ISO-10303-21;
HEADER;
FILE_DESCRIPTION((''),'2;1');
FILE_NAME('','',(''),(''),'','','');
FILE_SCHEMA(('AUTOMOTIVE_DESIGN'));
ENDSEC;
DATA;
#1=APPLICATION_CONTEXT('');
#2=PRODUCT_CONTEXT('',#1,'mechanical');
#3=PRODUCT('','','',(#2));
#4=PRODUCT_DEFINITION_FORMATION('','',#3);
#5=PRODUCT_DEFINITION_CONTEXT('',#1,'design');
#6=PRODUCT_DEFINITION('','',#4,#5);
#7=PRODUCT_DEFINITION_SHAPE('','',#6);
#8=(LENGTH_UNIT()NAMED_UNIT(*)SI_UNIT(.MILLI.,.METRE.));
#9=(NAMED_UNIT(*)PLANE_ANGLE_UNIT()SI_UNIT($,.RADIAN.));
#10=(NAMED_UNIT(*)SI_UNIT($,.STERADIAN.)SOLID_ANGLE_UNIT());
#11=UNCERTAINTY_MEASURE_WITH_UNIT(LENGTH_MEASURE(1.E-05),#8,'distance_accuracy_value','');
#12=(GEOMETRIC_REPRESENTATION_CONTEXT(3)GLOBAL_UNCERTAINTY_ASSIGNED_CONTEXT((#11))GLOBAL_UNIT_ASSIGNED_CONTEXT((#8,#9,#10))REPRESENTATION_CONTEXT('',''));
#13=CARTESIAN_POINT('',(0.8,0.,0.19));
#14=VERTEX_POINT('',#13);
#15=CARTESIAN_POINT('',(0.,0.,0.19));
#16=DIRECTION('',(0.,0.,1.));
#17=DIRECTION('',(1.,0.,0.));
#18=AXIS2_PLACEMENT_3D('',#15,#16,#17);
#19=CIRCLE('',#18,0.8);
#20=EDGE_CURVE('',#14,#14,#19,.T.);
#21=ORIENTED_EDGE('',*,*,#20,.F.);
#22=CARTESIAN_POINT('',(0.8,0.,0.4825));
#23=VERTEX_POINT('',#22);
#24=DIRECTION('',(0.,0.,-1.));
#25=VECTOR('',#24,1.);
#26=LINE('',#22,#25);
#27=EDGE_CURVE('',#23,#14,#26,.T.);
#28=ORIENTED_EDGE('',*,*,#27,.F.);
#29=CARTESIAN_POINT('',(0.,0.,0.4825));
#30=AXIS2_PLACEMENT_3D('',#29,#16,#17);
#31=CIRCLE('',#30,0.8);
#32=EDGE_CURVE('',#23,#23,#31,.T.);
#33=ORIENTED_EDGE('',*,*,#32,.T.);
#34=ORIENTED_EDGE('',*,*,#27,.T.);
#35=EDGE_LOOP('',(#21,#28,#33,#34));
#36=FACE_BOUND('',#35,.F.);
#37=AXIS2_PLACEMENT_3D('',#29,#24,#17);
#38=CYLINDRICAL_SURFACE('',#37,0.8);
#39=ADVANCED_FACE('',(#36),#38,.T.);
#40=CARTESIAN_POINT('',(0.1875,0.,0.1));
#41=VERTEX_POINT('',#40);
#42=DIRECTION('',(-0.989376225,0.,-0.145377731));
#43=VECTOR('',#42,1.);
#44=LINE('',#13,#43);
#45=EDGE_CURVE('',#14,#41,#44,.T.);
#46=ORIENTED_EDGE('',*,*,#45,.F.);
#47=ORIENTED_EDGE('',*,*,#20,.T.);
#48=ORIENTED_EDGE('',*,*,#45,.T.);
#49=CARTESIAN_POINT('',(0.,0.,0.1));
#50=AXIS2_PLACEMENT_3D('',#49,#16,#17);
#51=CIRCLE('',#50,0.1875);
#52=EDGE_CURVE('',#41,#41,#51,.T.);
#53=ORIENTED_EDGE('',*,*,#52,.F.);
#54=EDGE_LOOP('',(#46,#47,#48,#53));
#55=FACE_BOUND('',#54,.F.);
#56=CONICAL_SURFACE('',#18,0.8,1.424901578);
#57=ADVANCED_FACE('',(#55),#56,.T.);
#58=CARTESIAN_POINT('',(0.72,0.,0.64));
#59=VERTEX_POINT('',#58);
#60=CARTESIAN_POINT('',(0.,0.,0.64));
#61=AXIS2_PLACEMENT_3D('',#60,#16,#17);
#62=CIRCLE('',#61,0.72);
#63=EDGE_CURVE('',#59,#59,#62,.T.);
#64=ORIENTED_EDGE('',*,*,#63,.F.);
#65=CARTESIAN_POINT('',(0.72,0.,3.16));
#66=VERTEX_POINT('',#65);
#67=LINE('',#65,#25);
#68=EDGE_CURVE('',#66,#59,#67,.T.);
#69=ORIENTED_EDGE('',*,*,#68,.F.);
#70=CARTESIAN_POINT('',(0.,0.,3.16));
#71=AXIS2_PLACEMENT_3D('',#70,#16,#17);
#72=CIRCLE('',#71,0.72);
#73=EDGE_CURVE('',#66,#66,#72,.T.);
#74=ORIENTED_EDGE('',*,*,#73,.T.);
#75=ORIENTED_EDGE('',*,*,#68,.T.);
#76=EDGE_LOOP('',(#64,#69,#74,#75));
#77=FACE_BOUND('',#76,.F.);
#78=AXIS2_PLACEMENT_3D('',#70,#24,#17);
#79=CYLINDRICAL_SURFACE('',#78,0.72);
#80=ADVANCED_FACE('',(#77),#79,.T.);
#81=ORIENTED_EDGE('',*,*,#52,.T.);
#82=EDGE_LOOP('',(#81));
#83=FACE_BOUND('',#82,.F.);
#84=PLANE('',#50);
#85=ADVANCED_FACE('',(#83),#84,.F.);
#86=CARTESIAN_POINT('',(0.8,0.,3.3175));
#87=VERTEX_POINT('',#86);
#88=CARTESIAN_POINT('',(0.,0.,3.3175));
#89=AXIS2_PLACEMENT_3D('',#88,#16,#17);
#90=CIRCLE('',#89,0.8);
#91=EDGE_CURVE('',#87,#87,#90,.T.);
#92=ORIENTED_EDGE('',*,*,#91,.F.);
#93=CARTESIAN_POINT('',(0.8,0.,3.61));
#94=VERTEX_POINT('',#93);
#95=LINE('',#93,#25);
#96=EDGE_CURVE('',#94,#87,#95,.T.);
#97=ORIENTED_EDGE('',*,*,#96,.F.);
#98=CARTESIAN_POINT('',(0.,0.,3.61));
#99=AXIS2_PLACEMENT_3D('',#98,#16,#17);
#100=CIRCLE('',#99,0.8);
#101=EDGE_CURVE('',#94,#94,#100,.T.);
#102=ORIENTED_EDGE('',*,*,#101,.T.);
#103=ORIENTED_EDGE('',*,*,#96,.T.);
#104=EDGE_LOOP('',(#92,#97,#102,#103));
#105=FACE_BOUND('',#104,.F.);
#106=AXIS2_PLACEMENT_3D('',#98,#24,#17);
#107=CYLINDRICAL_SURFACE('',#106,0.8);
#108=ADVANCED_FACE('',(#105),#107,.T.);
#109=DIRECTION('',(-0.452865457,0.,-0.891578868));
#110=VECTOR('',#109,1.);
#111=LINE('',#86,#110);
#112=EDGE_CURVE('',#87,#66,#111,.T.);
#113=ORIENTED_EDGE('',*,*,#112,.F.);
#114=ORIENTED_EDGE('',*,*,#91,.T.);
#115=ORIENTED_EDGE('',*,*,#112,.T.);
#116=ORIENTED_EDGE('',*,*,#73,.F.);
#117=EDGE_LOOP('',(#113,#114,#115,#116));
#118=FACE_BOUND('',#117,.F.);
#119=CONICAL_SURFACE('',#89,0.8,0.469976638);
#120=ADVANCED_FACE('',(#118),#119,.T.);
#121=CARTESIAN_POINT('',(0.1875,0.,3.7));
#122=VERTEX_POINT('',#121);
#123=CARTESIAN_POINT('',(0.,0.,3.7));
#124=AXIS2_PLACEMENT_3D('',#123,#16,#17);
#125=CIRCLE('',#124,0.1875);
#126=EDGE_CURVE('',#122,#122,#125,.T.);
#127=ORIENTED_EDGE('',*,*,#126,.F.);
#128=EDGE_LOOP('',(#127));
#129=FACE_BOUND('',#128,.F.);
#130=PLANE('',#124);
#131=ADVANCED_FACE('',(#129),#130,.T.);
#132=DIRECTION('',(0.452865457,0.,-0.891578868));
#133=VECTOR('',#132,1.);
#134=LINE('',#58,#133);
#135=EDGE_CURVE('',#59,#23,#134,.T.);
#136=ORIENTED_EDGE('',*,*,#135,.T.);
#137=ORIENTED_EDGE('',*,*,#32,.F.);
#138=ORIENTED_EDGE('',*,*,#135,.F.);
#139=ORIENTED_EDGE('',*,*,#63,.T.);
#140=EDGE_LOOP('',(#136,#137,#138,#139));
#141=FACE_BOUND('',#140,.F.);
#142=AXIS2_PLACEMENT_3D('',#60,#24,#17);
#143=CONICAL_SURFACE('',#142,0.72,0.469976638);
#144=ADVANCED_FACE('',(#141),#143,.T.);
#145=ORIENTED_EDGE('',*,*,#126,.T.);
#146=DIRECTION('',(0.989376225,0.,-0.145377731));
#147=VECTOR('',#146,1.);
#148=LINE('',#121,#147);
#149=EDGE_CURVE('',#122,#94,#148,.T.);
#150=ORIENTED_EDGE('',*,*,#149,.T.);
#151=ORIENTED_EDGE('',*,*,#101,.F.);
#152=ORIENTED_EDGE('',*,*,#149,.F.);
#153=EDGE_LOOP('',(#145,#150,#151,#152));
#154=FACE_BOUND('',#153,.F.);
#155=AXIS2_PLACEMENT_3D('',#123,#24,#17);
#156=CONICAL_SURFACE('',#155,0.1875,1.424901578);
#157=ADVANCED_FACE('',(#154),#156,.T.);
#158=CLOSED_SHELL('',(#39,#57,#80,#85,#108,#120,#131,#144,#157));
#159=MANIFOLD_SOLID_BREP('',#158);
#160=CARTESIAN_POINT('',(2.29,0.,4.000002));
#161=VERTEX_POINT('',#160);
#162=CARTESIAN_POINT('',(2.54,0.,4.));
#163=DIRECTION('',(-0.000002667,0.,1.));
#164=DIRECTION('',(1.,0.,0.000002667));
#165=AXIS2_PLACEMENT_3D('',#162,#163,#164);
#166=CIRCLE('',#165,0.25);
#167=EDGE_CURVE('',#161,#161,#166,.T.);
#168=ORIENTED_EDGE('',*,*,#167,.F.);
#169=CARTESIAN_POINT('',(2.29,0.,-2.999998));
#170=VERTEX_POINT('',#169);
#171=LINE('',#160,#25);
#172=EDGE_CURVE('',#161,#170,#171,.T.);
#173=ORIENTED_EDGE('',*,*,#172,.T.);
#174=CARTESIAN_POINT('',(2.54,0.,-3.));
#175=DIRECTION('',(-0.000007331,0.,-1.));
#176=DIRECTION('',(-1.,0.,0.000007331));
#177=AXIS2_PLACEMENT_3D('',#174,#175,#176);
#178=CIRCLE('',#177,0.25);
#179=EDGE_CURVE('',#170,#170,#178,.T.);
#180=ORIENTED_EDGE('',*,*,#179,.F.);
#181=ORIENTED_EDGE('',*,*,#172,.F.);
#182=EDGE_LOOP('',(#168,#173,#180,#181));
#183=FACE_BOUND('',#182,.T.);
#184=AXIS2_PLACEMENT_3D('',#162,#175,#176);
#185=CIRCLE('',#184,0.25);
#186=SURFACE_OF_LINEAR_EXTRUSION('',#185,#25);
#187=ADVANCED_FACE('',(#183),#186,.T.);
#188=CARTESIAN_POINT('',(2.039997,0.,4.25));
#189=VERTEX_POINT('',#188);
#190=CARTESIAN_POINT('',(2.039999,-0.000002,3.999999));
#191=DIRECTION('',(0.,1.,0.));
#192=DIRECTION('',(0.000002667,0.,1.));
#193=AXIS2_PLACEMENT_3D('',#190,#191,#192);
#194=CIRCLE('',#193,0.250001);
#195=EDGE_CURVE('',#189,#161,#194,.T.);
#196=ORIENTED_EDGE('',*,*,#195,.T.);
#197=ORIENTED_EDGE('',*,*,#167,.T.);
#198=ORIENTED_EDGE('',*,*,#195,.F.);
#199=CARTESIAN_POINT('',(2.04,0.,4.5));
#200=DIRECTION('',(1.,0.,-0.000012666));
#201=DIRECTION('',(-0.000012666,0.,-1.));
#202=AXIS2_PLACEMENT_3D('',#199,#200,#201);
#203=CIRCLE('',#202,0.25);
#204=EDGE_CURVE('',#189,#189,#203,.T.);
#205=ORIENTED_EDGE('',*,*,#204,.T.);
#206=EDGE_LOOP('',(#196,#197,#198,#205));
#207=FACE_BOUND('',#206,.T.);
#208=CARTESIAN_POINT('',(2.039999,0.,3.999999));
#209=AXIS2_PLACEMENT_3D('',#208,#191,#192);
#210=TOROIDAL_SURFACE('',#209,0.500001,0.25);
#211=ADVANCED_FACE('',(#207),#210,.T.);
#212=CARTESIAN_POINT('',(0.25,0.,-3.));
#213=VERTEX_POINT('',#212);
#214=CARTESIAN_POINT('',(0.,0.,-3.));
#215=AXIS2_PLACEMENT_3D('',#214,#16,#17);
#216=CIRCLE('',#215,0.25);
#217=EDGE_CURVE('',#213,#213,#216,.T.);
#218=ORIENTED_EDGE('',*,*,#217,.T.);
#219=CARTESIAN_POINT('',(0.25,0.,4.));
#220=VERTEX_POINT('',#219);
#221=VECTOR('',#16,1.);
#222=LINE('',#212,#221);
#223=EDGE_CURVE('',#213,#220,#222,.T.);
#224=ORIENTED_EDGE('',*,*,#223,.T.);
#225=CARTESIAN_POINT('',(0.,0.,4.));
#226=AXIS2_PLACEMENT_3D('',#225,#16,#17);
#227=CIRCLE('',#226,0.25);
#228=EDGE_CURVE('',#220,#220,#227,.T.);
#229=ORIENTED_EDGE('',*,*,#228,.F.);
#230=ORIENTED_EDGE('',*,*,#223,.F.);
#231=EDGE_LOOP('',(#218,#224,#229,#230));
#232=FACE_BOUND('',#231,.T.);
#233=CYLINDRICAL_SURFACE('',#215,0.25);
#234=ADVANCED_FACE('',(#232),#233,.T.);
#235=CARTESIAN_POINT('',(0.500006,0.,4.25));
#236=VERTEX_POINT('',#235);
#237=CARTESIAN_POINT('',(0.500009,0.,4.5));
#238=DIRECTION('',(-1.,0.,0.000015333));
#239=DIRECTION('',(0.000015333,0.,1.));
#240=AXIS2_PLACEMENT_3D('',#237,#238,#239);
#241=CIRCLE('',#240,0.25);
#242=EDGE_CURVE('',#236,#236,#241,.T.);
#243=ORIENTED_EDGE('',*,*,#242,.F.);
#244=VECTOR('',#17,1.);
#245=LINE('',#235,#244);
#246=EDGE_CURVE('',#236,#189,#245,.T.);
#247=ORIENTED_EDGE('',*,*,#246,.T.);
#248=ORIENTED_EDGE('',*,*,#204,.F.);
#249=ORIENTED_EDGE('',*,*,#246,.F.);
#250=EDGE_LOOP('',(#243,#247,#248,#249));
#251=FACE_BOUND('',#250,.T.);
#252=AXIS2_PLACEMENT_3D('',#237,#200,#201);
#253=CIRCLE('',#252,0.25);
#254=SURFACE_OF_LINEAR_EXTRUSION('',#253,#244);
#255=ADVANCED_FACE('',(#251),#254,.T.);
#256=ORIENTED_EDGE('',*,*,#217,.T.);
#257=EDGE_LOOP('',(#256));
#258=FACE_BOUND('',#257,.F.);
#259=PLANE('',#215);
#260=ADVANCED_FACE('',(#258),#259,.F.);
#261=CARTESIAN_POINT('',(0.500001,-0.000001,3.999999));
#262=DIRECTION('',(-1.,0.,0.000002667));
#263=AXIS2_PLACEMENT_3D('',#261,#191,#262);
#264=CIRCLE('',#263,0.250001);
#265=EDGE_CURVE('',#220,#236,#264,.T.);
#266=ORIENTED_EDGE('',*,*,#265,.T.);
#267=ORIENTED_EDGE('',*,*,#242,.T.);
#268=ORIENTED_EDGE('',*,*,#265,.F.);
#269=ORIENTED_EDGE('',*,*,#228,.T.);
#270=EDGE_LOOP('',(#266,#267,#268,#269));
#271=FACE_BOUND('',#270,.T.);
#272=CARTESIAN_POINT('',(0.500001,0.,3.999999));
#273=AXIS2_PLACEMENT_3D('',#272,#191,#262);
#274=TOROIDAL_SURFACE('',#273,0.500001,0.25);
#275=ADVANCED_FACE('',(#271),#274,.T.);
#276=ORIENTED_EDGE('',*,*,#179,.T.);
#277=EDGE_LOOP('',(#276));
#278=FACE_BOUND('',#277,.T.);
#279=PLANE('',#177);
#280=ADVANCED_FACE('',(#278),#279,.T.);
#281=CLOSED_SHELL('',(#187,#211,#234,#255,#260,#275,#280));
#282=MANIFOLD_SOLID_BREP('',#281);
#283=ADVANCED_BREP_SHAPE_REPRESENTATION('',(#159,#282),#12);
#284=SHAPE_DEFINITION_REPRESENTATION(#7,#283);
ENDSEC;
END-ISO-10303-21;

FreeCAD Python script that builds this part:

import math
import FreeCAD as App
import Part
import Sketcher

V = App.Vector
Q = App.Units.Quantity

doc = App.newDocument("Part")
params = doc.addObject("Spreadsheet::Sheet", "Params")
for row, (alias, value) in enumerate([
    ("sketch1_diameter", "0.5 mm"),
    ("sketch2_radius", "0.500001 mm"),
    ("sketch2_height", "7 mm"),
    ("sketch3_height", "3.6 mm"),
    ("sketch3_height2", "2.52 mm"),
    ("revolution_angle", "360 deg"),
], start=1):
    params.set(f"A{row}", alias)
    params.set(f"B{row}", "=" + value)
    params.setAlias(f"B{row}", alias)

body = doc.addObject("PartDesign::Body", "Body")

sketch1 = body.newObject("Sketcher::SketchObject", "Sketch")
sketch1.AttachmentSupport = (doc.getObject("XY_Plane"), [""])
sketch1.MapMode = "FlatFace"
sketch1.AttachmentOffset = App.Placement(V(0, 0, -2), App.Rotation())
sketch1.addGeometry(Part.Circle(V(0, 0, 0), V(0, 0, 1), 0.25), False)
sketch1.addConstraint([
    Sketcher.Constraint("Coincident", 0, 3, -1, 1),
    Sketcher.Constraint("Diameter", 0, Q("0.5 mm")),
])
sketch1.setExpression("Constraints[1]", "Params.sketch1_diameter")

sketch2 = body.newObject("Sketcher::SketchObject", "Sketch001")
sketch2.AttachmentSupport = (doc.getObject("XZ_Plane"), [""])
sketch2.MapMode = "FlatFace"
sketch2.addGeometry([
    Part.LineSegment(V(0, -3, 0), V(0, 4, 0)),
    Part.ArcOfCircle(Part.Circle(V(0.500001, 3.999999, 0), V(0, 0, 1), 0.500001), math.radians(89.999122), math.radians(179.999847)),
    Part.LineSegment(V(0.500009, 4.5, 0), V(2.04, 4.5, 0)),
    Part.ArcOfCircle(Part.Circle(V(2.039999, 3.999999, 0), V(0, 0, 1), 0.500001), math.radians(0.000153), math.radians(89.999847)),
    Part.LineSegment(V(2.54, 4, 0), V(2.54, -3, 0)),
], False)
sketch2.addConstraint([
    Sketcher.Constraint("Coincident", 0, 2, 1, 2),
    Sketcher.Constraint("Coincident", 1, 1, 2, 1),
    Sketcher.Constraint("Coincident", 2, 2, 3, 2),
    Sketcher.Constraint("Coincident", 3, 1, 4, 1),
    Sketcher.Constraint("Vertical", 0),
    Sketcher.Constraint("Horizontal", 2),
    Sketcher.Constraint("Vertical", 4),
    Sketcher.Constraint("Equal", 1, 3),
    Sketcher.Constraint("PointOnObject", 0, 1, -2),
    Sketcher.Constraint("Horizontal", 3, 3, 0, 2),
    Sketcher.Constraint("Horizontal", 0, 2, 3, 1),
    Sketcher.Constraint("Horizontal", 0, 1, 4, 2),
    Sketcher.Constraint("Vertical", 3, 3, 2, 2),
    Sketcher.Constraint("Radius", 1, Q("0.500001 mm")),
    Sketcher.Constraint("DistanceY", 0, 1, 0, 2, Q("7 mm")),
    Sketcher.Constraint("DistanceY", -1, 1, 1, 3, Q("3.999999 mm")),
    Sketcher.Constraint("DistanceX", -1, 1, 3, 3, Q("2.039999 mm")),
    Sketcher.Constraint("DistanceX", 2, 1, 2, 2, Q("1.539991 mm")),
])
sketch2.setExpression("Constraints[13]", "Params.sketch2_radius")
sketch2.setExpression("Constraints[14]", "Params.sketch2_height")
doc.recompute()

additivepipe = body.newObject("PartDesign::AdditivePipe", "AdditivePipe")
additivepipe.Profile = sketch1
additivepipe.Spine = (sketch2, ["Edge1", "Edge2", "Edge3", "Edge4", "Edge5"])
body2 = doc.addObject("PartDesign::Body", "Body001")

sketch3 = body2.newObject("Sketcher::SketchObject", "Sketch002")
sketch3.AttachmentSupport = (doc.getObject("XZ_Plane001"), [""])
sketch3.MapMode = "FlatFace"
sketch3.addGeometry([
    Part.LineSegment(V(0, 3.7, 0), V(0, 0.1, 0)),
    Part.LineSegment(V(0, 0.1, 0), V(0.1875, 0.1, 0)),
    Part.LineSegment(V(0.1875, 0.1, 0), V(0.8, 0.19, 0)),
    Part.LineSegment(V(0.8, 0.19, 0), V(0.8, 0.4825, 0)),
    Part.LineSegment(V(0.8, 0.4825, 0), V(0.72, 0.64, 0)),
    Part.LineSegment(V(0.72, 0.64, 0), V(0.72, 3.16, 0)),
    Part.LineSegment(V(0.72, 3.16, 0), V(0.8, 3.3175, 0)),
    Part.LineSegment(V(0.8, 3.3175, 0), V(0.8, 3.61, 0)),
    Part.LineSegment(V(0.8, 3.61, 0), V(0.1875, 3.7, 0)),
    Part.LineSegment(V(0.1875, 3.7, 0), V(0, 3.7, 0)),
], False)
sketch3.addConstraint([
    Sketcher.Constraint("Coincident", 0, 2, 1, 1),
    Sketcher.Constraint("Coincident", 1, 2, 2, 1),
    Sketcher.Constraint("Coincident", 2, 2, 3, 1),
    Sketcher.Constraint("Coincident", 3, 2, 4, 1),
    Sketcher.Constraint("Coincident", 4, 2, 5, 1),
    Sketcher.Constraint("Coincident", 5, 2, 6, 1),
    Sketcher.Constraint("Coincident", 6, 2, 7, 1),
    Sketcher.Constraint("Coincident", 7, 2, 8, 1),
    Sketcher.Constraint("Coincident", 8, 2, 9, 1),
    Sketcher.Constraint("Coincident", 9, 2, 0, 1),
    Sketcher.Constraint("Vertical", 0),
    Sketcher.Constraint("Horizontal", 1),
    Sketcher.Constraint("Vertical", 3),
    Sketcher.Constraint("Vertical", 5),
    Sketcher.Constraint("Vertical", 7),
    Sketcher.Constraint("Horizontal", 9),
    Sketcher.Constraint("PointOnObject", 0, 2, -2),
    Sketcher.Constraint("Vertical", 3, 2, 6, 2),
    Sketcher.Constraint("Vertical", 1, 2, 8, 2),
    Sketcher.Constraint("Equal", 3, 7),
    Sketcher.Constraint("Equal", 4, 6),
    Sketcher.Constraint("Equal", 2, 8),
    Sketcher.Constraint("DistanceY", 0, 2, 0, 1, Q("3.6 mm")),
    Sketcher.Constraint("DistanceY", 5, 1, 5, 2, Q("2.52 mm")),
    Sketcher.Constraint("DistanceY", -1, 1, 0, 2, Q("0.1 mm")),
    Sketcher.Constraint("DistanceX", -1, 1, 2, 2, Q("0.8 mm")),
    Sketcher.Constraint("DistanceY", -1, 1, 2, 2, Q("0.19 mm")),
    Sketcher.Constraint("DistanceX", -1, 1, 4, 2, Q("0.72 mm")),
    Sketcher.Constraint("DistanceX", 1, 1, 1, 2, Q("0.1875 mm")),
    Sketcher.Constraint("DistanceY", 3, 1, 3, 2, Q("0.2925 mm")),
])
sketch3.setExpression("Constraints[22]", "Params.sketch3_height")
sketch3.setExpression("Constraints[23]", "Params.sketch3_height2")
revolution = body2.newObject("PartDesign::Revolution", "Revolution")
revolution.Profile = sketch3
revolution.ReferenceAxis = (sketch3, ["V_Axis"])
revolution.setExpression("Angle", "Params.revolution_angle")

doc.recompute()
